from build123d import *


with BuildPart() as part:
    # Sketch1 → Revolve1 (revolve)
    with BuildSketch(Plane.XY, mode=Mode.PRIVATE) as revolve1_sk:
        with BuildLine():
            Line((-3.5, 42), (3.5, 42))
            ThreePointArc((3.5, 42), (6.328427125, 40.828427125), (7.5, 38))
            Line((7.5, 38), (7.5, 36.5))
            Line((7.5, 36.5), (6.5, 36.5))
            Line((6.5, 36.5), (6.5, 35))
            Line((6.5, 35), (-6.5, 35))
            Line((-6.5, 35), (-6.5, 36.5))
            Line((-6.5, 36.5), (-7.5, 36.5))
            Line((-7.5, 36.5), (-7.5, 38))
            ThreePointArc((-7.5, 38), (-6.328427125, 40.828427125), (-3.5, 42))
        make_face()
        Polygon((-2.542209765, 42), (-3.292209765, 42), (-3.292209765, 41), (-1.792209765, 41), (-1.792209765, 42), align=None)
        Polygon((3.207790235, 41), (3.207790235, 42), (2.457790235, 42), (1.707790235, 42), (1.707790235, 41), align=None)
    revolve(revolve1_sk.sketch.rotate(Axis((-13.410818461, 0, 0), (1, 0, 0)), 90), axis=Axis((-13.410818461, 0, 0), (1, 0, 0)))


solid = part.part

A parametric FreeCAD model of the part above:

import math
import FreeCAD as App
import Part
import Sketcher
Q = App.Units.Quantity

doc = App.newDocument("Part")
params = doc.addObject("Spreadsheet::Sheet", "Params")
for row, (alias, value) in enumerate([
    ("sketch1_radius", "4 mm"),
    ("sketch1_width", "1 mm"),
    ("sketch1_width2", "13 mm"),
    ("sketch1_height", "1.5 mm"),
    ("revolution_angle", "360 deg"),
], start=1):
    params.set(f"A{row}", alias)
    params.set(f"B{row}", "=" + value)
    params.setAlias(f"B{row}", alias)

body = doc.addObject("PartDesign::Body", "Body")

# Sketch on XY plane
sketch1 = body.newObject("Sketcher::SketchObject", "Sketch")
sketch1.AttachmentSupport = (doc.getObject("XY_Plane"), [""])
sketch1.MapMode = "FlatFace"
sketch1.addGeometry(Part.LineSegment(App.Vector(-7.5, 38, 0), App.Vector(-7.5, 36.5, 0)), False)
sketch1.addGeometry(Part.LineSegment(App.Vector(-7.5, 36.5, 0), App.Vector(-6.5, 36.5, 0)), False)
sketch1.addGeometry(Part.LineSegment(App.Vector(-6.5, 36.5, 0), App.Vector(-6.5, 35, 0)), False)
sketch1.addGeometry(Part.LineSegment(App.Vector(-6.5, 35, 0), App.Vector(6.5, 35, 0)), False)
sketch1.addGeometry(Part.LineSegment(App.Vector(6.5, 35, 0), App.Vector(6.5, 36.5, 0)), False)
sketch1.addGeometry(Part.LineSegment(App.Vector(6.5, 36.5, 0), App.Vector(7.5, 36.5, 0)), False)
sketch1.addGeometry(Part.LineSegment(App.Vector(7.5, 36.5, 0), App.Vector(7.5, 38, 0)), False)
sketch1.addGeometry(Part.ArcOfCircle(Part.Circle(App.Vector(3.5, 38, 0), App.Vector(0, 0, 1), 4), math.radians(0), math.radians(90)), False)
sketch1.addGeometry(Part.LineSegment(App.Vector(3.5, 42, 0), App.Vector(-3.5, 42, 0)), False)
sketch1.addGeometry(Part.ArcOfCircle(Part.Circle(App.Vector(-3.5, 38, 0), App.Vector(0, 0, 1), 4), math.radians(90), math.radians(180)), False)
sketch1.addConstraint(Sketcher.Constraint("Coincident", 0, 2, 1, 1))
sketch1.addConstraint(Sketcher.Constraint("Coincident", 1, 2, 2, 1))
sketch1.addConstraint(Sketcher.Constraint("Coincident", 2, 2, 3, 1))
sketch1.addConstraint(Sketcher.Constraint("Coincident", 3, 2, 4, 1))
sketch1.addConstraint(Sketcher.Constraint("Coincident", 4, 2, 5, 1))
sketch1.addConstraint(Sketcher.Constraint("Coincident", 5, 2, 6, 1))
sketch1.addConstraint(Sketcher.Constraint("Tangent", 6, 2, 7, 1))
sketch1.addConstraint(Sketcher.Constraint("Tangent", 7, 2, 8, 1))
sketch1.addConstraint(Sketcher.Constraint("Tangent", 8, 2, 9, 1))
sketch1.addConstraint(Sketcher.Constraint("Tangent", 9, 2, 0, 1))
sketch1.addConstraint(Sketcher.Constraint("Vertical", 0))
sketch1.addConstraint(Sketcher.Constraint("Horizontal", 1))
sketch1.addConstraint(Sketcher.Constraint("Vertical", 2))
sketch1.addConstraint(Sketcher.Constraint("Horizontal", 3))
sketch1.addConstraint(Sketcher.Constraint("Vertical", 4))
sketch1.addConstraint(Sketcher.Constraint("Horizontal", 5))
sketch1.addConstraint(Sketcher.Constraint("Vertical", 6))
sketch1.addConstraint(Sketcher.Constraint("Horizontal", 8))
sketch1.addConstraint(Sketcher.Constraint("Equal", 7, 9))
sketch1.addConstraint(Sketcher.Constraint("Symmetric", 1, 2, 4, 2, -2))
sketch1.addConstraint(Sketcher.Constraint("Equal", 1, 5))
sketch1.addConstraint(Sketcher.Constraint("Equal", 0, 2))
sketch1.addConstraint(Sketcher.Constraint("Radius", 7, Q("4 mm")))
sketch1.addConstraint(Sketcher.Constraint("DistanceX", 1, 1, 1, 2, Q("1 mm")))
sketch1.addConstraint(Sketcher.Constraint("DistanceX", 3, 1, 3, 2, Q("13 mm")))
sketch1.addConstraint(Sketcher.Constraint("DistanceY", 0, 2, 0, 1, Q("1.5 mm")))
sketch1.addConstraint(Sketcher.Constraint("DistanceY", -1, 1, 7, 3, Q("38 mm")))
sketch1.setExpression("Constraints[22]", "Params.sketch1_radius")
sketch1.setExpression("Constraints[23]", "Params.sketch1_width")
sketch1.setExpression("Constraints[24]", "Params.sketch1_width2")
sketch1.setExpression("Constraints[25]", "Params.sketch1_height")
revolution = body.newObject("PartDesign::Revolution", "Revolution")
revolution.Profile = sketch1
revolution.ReferenceAxis = (sketch1, ["H_Axis"])
revolution.setExpression("Angle", "Params.revolution_angle")

doc.recompute()
